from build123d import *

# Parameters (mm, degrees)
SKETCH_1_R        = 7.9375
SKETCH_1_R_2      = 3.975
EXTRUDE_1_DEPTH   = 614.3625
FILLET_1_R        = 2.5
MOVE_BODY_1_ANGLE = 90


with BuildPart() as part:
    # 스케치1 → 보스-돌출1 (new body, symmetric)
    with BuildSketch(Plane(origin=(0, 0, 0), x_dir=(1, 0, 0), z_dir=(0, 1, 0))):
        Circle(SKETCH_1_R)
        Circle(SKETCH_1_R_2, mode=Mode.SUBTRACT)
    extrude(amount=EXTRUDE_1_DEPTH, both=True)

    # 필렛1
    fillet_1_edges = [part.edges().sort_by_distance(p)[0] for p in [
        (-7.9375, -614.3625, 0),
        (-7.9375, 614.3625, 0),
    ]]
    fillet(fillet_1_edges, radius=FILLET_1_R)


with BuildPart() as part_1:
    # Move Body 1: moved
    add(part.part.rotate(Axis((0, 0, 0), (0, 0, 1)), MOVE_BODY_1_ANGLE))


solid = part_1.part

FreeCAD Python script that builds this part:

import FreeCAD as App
import Part
import Sketcher

V = App.Vector
Q = App.Units.Quantity


def edges_at(feature, points):
    """Names of the edges that pass closest to the given points."""
    edges = feature.Shape.Edges
    near = lambda p: min(range(len(edges)), key=lambda i: edges[i].distToShape(Part.Vertex(*p))[0])
    return sorted({f"Edge{near(p) + 1}" for p in points})

doc = App.newDocument("Part")
body = doc.addObject("PartDesign::Body", "Body")

# Sketch on XZ plane
sketch1 = doc.addObject("Sketcher::SketchObject", "Sketch")
body.addObject(sketch1)
sketch1.AttachmentSupport = (doc.XZ_Plane, [""])
sketch1.MapMode = "FlatFace"
sketch1.addGeometry([
    Part.Circle(V(0, 0, 0), V(0, 0, 1), 7.9),
    Part.Circle(V(0, 0, 0), V(0, 0, 1), 4),
], False)
sketch1.addConstraint([
    Sketcher.Constraint("Coincident", 0, 3, -1, 1),
    Sketcher.Constraint("Coincident", 1, 3, -1, 1),
    Sketcher.Constraint("Diameter", 0, Q("0.625 in")),
    Sketcher.Constraint("Diameter", 1, 7.95),
])
pad1 = doc.addObject("PartDesign::Pad", "Pad")
body.addObject(pad1)
pad1.Profile = sketch1
pad1.Length = Q("48.375 in")
pad1.Midplane = True
doc.recompute()

fillet = doc.addObject("PartDesign::Fillet", "Fillet")
body.addObject(fillet)
fillet.Base = (pad1, edges_at(pad1, [(-7.938, -614.362, 0), (-7.938, 614.362, 0)]))
fillet.Radius = 2.5
body2 = doc.addObject("PartDesign::Body", "Body001")
doc.recompute()

body.Placement = App.Placement(V(0, 0, 0), App.Rotation(V(0, 0, 1), 90))
boolean = doc.addObject("PartDesign::Boolean", "Boolean")
body2.addObject(boolean)
boolean.Type = "Fuse"
boolean.addObjects([body])

doc.recompute()
